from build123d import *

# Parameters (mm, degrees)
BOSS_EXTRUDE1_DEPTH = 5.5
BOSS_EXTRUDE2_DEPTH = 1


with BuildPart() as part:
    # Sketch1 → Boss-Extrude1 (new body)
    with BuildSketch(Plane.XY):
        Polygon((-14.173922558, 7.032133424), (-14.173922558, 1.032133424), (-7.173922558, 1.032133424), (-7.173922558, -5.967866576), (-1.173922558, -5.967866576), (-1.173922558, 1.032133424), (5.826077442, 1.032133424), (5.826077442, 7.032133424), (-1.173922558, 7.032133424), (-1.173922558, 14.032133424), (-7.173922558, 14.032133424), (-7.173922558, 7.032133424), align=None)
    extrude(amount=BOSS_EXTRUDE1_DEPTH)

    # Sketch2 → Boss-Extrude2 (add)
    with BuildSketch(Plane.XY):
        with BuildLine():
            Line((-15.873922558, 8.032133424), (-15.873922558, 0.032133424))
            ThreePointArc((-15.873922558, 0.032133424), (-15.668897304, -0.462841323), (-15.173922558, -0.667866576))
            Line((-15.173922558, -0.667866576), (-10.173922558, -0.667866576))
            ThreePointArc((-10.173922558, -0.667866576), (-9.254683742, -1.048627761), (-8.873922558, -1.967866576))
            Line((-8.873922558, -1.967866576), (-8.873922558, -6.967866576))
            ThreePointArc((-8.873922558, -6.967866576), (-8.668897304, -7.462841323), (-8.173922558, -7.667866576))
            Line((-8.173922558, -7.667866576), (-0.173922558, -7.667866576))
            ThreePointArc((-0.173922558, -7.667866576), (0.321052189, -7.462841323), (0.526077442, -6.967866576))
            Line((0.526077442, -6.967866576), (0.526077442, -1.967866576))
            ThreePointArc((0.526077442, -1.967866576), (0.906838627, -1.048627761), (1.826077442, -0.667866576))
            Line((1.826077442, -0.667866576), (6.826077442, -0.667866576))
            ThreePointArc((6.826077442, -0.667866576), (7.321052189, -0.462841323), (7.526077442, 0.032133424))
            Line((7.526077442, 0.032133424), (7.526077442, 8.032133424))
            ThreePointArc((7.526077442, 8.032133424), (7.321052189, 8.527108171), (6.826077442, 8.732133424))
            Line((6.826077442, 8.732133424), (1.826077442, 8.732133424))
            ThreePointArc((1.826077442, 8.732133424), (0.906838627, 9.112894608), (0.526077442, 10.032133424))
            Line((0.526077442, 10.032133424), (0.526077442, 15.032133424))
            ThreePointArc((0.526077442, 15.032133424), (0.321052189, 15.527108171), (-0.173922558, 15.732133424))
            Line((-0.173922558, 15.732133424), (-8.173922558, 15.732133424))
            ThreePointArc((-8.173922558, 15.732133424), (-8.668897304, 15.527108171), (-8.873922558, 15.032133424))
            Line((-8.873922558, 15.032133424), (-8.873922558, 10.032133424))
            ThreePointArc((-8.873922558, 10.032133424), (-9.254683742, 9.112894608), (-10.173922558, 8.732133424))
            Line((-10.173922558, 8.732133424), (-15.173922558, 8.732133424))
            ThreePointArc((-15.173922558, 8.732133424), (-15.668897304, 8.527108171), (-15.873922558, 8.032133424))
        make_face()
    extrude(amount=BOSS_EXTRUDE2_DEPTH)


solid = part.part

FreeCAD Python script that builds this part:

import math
import FreeCAD as App
import Part
import Sketcher

V = App.Vector
Q = App.Units.Quantity

doc = App.newDocument("Part")
body = doc.addObject("PartDesign::Body", "Body")

sketch1 = doc.addObject("Sketcher::SketchObject", "Sketch")
body.addObject(sketch1)
sketch1.AttachmentSupport = (doc.XY_Plane, [""])
sketch1.MapMode = "FlatFace"
sketch1.addGeometry([
    Part.LineSegment(V(-14, 7, 0), V(-14, 1, 0)),
    Part.LineSegment(V(-14, 1, 0), V(-7, 1, 0)),
    Part.LineSegment(V(-7, 1, 0), V(-7, -6, 0)),
    Part.LineSegment(V(-7, -6, 0), V(-1, -6, 0)),
    Part.LineSegment(V(-1, -6, 0), V(-1, 1, 0)),
    Part.LineSegment(V(-1, 1, 0), V(6, 1, 0)),
    Part.LineSegment(V(6, 1, 0), V(6, 7, 0)),
    Part.LineSegment(V(6, 7, 0), V(-1, 7, 0)),
    Part.LineSegment(V(-1, 7, 0), V(-1, 14, 0)),
    Part.LineSegment(V(-1, 14, 0), V(-7, 14, 0)),
    Part.LineSegment(V(-7, 14, 0), V(-7, 7, 0)),
    Part.LineSegment(V(-7, 7, 0), V(-14, 7, 0)),
], False)
sketch1.addConstraint([
    Sketcher.Constraint("Coincident", 0, 2, 1, 1),
    Sketcher.Constraint("Coincident", 1, 2, 2, 1),
    Sketcher.Constraint("Coincident", 2, 2, 3, 1),
    Sketcher.Constraint("Coincident", 3, 2, 4, 1),
    Sketcher.Constraint("Coincident", 4, 2, 5, 1),
    Sketcher.Constraint("Coincident", 5, 2, 6, 1),
    Sketcher.Constraint("Coincident", 6, 2, 7, 1),
    Sketcher.Constraint("Coincident", 7, 2, 8, 1),
    Sketcher.Constraint("Coincident", 8, 2, 9, 1),
    Sketcher.Constraint("Coincident", 9, 2, 10, 1),
    Sketcher.Constraint("Coincident", 10, 2, 11, 1),
    Sketcher.Constraint("Coincident", 11, 2, 0, 1),
    Sketcher.Constraint("Vertical", 0),
    Sketcher.Constraint("Horizontal", 1),
    Sketcher.Constraint("Vertical", 2),
    Sketcher.Constraint("Horizontal", 3),
    Sketcher.Constraint("Vertical", 4),
    Sketcher.Constraint("Horizontal", 5),
    Sketcher.Constraint("Vertical", 6),
    Sketcher.Constraint("Horizontal", 7),
    Sketcher.Constraint("Vertical", 8),
    Sketcher.Constraint("Horizontal", 9),
    Sketcher.Constraint("Vertical", 10),
    Sketcher.Constraint("Horizontal", 11),
    Sketcher.Constraint("Horizontal", 1, 2, 4, 2),
    Sketcher.Constraint("Horizontal", 7, 2, 10, 2),
    Sketcher.Constraint("Vertical", 4, 2, 7, 2),
    Sketcher.Constraint("Vertical", 2, 2, 9, 2),
    Sketcher.Constraint("Equal", 1, 5),
    Sketcher.Constraint("Equal", 9, 0),
    Sketcher.Constraint("Equal", 11, 2),
    Sketcher.Constraint("Equal", 4, 8),
    Sketcher.Constraint("DistanceX", 1, 1, 1, 2, Q("7 mm")),
    Sketcher.Constraint("DistanceX", 3, 1, 3, 2, Q("6 mm")),
    Sketcher.Constraint("DistanceX", 0, 2, -1, 1, Q("14.173923 mm")),
    Sketcher.Constraint("DistanceY", -1, 1, 0, 2, Q("1.032133 mm")),
])
pad1 = doc.addObject("PartDesign::Pad", "Pad")
body.addObject(pad1)
pad1.Profile = sketch1
pad1.Length = 5.5

sketch2 = doc.addObject("Sketcher::SketchObject", "Sketch001")
body.addObject(sketch2)
sketch2.AttachmentSupport = (doc.XY_Plane, [""])
sketch2.MapMode = "FlatFace"
sketch2.addGeometry([
    Part.LineSegment(V(-15.9, 8, 0), V(-15.9, 0, 0)),
    Part.ArcOfCircle(Part.Circle(V(-15.2, 0, 0), V(0, 0, 1), 0.7), math.radians(-180), math.radians(-90)),
    Part.LineSegment(V(-15.2, -0.7, 0), V(-10.2, -0.7, 0)),
    Part.ArcOfCircle(Part.Circle(V(-10.2, -2, 0), V(0, 0, 1), 1.3), math.radians(0), math.radians(90)),
    Part.LineSegment(V(-8.9, -2, 0), V(-8.9, -7, 0)),
    Part.ArcOfCircle(Part.Circle(V(-8.2, -7, 0), V(0, 0, 1), 0.7), math.radians(-180), math.radians(-90)),
    Part.LineSegment(V(-8.2, -7.7, 0), V(-0.2, -7.7, 0)),
    Part.ArcOfCircle(Part.Circle(V(-0.2, -7, 0), V(0, 0, 1), 0.7), math.radians(-90), math.radians(0)),
    Part.LineSegment(V(0.5, -7, 0), V(0.5, -2, 0)),
    Part.ArcOfCircle(Part.Circle(V(1.8, -2, 0), V(0, 0, 1), 1.3), math.radians(90), math.radians(180)),
    Part.LineSegment(V(1.8, -0.7, 0), V(6.8, -0.7, 0)),
    Part.ArcOfCircle(Part.Circle(V(6.8, 0, 0), V(0, 0, 1), 0.7), math.radians(-90), math.radians(0)),
    Part.LineSegment(V(7.5, 0, 0), V(7.5, 8, 0)),
    Part.ArcOfCircle(Part.Circle(V(6.8, 8, 0), V(0, 0, 1), 0.7), math.radians(0), math.radians(90)),
    Part.LineSegment(V(6.8, 8.7, 0), V(1.8, 8.7, 0)),
    Part.ArcOfCircle(Part.Circle(V(1.8, 10, 0), V(0, 0, 1), 1.3), math.radians(180), math.radians(270)),
    Part.LineSegment(V(0.5, 10, 0), V(0.5, 15, 0)),
    Part.ArcOfCircle(Part.Circle(V(-0.2, 15, 0), V(0, 0, 1), 0.7), math.radians(0), math.radians(90)),
    Part.LineSegment(V(-0.2, 15.7, 0), V(-8.2, 15.7, 0)),
    Part.ArcOfCircle(Part.Circle(V(-8.2, 15, 0), V(0, 0, 1), 0.7), math.radians(90), math.radians(180)),
    Part.LineSegment(V(-8.9, 15, 0), V(-8.9, 10, 0)),
    Part.ArcOfCircle(Part.Circle(V(-10.2, 10, 0), V(0, 0, 1), 1.3), math.radians(-90), math.radians(0)),
    Part.LineSegment(V(-10.2, 8.7, 0), V(-15.2, 8.7, 0)),
    Part.ArcOfCircle(Part.Circle(V(-15.2, 8, 0), V(0, 0, 1), 0.7), math.radians(90), math.radians(180)),
], False)
sketch2.addConstraint([
    Sketcher.Constraint("Tangent", 0, 2, 1, 1),
    Sketcher.Constraint("Tangent", 1, 2, 2, 1),
    Sketcher.Constraint("Tangent", 2, 2, 3, 2),
    Sketcher.Constraint("Tangent", 3, 1, 4, 1),
    Sketcher.Constraint("Tangent", 4, 2, 5, 1),
    Sketcher.Constraint("Tangent", 5, 2, 6, 1),
    Sketcher.Constraint("Tangent", 6, 2, 7, 1),
    Sketcher.Constraint("Tangent", 7, 2, 8, 1),
    Sketcher.Constraint("Tangent", 8, 2, 9, 2),
    Sketcher.Constraint("Tangent", 9, 1, 10, 1),
    Sketcher.Constraint("Tangent", 10, 2, 11, 1),
    Sketcher.Constraint("Tangent", 11, 2, 12, 1),
    Sketcher.Constraint("Tangent", 12, 2, 13, 1),
    Sketcher.Constraint("Tangent", 13, 2, 14, 1),
    Sketcher.Constraint("Tangent", 14, 2, 15, 2),
    Sketcher.Constraint("Tangent", 15, 1, 16, 1),
    Sketcher.Constraint("Tangent", 16, 2, 17, 1),
    Sketcher.Constraint("Tangent", 17, 2, 18, 1),
    Sketcher.Constraint("Tangent", 18, 2, 19, 1),
    Sketcher.Constraint("Tangent", 19, 2, 20, 1),
    Sketcher.Constraint("Tangent", 20, 2, 21, 2),
    Sketcher.Constraint("Tangent", 21, 1, 22, 1),
    Sketcher.Constraint("Tangent", 22, 2, 23, 1),
    Sketcher.Constraint("Tangent", 23, 2, 0, 1),
    Sketcher.Constraint("Vertical", 0),
    Sketcher.Constraint("Horizontal", 2),
    Sketcher.Constraint("Vertical", 4),
    Sketcher.Constraint("Horizontal", 6),
    Sketcher.Constraint("Vertical", 8),
    Sketcher.Constraint("Horizontal", 10),
    Sketcher.Constraint("Vertical", 12),
    Sketcher.Constraint("Horizontal", 14),
    Sketcher.Constraint("Vertical", 16),
    Sketcher.Constraint("Horizontal", 18),
    Sketcher.Constraint("Vertical", 20),
    Sketcher.Constraint("Horizontal", 22),
    Sketcher.Constraint("Equal", 1, 5),
    Sketcher.Constraint("Equal", 5, 7),
    Sketcher.Constraint("Equal", 3, 9),
    Sketcher.Constraint("Equal", 7, 11),
    Sketcher.Constraint("Equal", 11, 13),
    Sketcher.Constraint("Equal", 9, 15),
    Sketcher.Constraint("Equal", 13, 17),
    Sketcher.Constraint("Equal", 17, 19),
    Sketcher.Constraint("Equal", 15, 21),
    Sketcher.Constraint("Equal", 19, 23),
    Sketcher.Constraint("Horizontal", 3, 3, 9, 3),
    Sketcher.Constraint("Horizontal", 15, 3, 21, 3),
    Sketcher.Constraint("Vertical", 9, 3, 15, 3),
    Sketcher.Constraint("Vertical", 5, 3, 19, 3),
    Sketcher.Constraint("Equal", 2, 10),
    Sketcher.Constraint("Equal", 18, 0),
    Sketcher.Constraint("Equal", 22, 4),
    Sketcher.Constraint("Equal", 8, 16),
    Sketcher.Constraint("Radius", 1, Q("0.7 mm")),
    Sketcher.Constraint("Radius", 3, Q("1.3 mm")),
    Sketcher.Constraint("DistanceX", 2, 1, 2, 2, Q("5 mm")),
    Sketcher.Constraint("DistanceX", 6, 1, 6, 2, Q("8 mm")),
    Sketcher.Constraint("DistanceX", 1, 3, -1, 1, Q("15.173923 mm")),
    Sketcher.Constraint("DistanceY", -1, 1, 1, 3, Q("0.032133 mm")),
])
pad2 = doc.addObject("PartDesign::Pad", "Pad001")
body.addObject(pad2)
pad2.Profile = sketch2
pad2.Length = 1

doc.recompute()
